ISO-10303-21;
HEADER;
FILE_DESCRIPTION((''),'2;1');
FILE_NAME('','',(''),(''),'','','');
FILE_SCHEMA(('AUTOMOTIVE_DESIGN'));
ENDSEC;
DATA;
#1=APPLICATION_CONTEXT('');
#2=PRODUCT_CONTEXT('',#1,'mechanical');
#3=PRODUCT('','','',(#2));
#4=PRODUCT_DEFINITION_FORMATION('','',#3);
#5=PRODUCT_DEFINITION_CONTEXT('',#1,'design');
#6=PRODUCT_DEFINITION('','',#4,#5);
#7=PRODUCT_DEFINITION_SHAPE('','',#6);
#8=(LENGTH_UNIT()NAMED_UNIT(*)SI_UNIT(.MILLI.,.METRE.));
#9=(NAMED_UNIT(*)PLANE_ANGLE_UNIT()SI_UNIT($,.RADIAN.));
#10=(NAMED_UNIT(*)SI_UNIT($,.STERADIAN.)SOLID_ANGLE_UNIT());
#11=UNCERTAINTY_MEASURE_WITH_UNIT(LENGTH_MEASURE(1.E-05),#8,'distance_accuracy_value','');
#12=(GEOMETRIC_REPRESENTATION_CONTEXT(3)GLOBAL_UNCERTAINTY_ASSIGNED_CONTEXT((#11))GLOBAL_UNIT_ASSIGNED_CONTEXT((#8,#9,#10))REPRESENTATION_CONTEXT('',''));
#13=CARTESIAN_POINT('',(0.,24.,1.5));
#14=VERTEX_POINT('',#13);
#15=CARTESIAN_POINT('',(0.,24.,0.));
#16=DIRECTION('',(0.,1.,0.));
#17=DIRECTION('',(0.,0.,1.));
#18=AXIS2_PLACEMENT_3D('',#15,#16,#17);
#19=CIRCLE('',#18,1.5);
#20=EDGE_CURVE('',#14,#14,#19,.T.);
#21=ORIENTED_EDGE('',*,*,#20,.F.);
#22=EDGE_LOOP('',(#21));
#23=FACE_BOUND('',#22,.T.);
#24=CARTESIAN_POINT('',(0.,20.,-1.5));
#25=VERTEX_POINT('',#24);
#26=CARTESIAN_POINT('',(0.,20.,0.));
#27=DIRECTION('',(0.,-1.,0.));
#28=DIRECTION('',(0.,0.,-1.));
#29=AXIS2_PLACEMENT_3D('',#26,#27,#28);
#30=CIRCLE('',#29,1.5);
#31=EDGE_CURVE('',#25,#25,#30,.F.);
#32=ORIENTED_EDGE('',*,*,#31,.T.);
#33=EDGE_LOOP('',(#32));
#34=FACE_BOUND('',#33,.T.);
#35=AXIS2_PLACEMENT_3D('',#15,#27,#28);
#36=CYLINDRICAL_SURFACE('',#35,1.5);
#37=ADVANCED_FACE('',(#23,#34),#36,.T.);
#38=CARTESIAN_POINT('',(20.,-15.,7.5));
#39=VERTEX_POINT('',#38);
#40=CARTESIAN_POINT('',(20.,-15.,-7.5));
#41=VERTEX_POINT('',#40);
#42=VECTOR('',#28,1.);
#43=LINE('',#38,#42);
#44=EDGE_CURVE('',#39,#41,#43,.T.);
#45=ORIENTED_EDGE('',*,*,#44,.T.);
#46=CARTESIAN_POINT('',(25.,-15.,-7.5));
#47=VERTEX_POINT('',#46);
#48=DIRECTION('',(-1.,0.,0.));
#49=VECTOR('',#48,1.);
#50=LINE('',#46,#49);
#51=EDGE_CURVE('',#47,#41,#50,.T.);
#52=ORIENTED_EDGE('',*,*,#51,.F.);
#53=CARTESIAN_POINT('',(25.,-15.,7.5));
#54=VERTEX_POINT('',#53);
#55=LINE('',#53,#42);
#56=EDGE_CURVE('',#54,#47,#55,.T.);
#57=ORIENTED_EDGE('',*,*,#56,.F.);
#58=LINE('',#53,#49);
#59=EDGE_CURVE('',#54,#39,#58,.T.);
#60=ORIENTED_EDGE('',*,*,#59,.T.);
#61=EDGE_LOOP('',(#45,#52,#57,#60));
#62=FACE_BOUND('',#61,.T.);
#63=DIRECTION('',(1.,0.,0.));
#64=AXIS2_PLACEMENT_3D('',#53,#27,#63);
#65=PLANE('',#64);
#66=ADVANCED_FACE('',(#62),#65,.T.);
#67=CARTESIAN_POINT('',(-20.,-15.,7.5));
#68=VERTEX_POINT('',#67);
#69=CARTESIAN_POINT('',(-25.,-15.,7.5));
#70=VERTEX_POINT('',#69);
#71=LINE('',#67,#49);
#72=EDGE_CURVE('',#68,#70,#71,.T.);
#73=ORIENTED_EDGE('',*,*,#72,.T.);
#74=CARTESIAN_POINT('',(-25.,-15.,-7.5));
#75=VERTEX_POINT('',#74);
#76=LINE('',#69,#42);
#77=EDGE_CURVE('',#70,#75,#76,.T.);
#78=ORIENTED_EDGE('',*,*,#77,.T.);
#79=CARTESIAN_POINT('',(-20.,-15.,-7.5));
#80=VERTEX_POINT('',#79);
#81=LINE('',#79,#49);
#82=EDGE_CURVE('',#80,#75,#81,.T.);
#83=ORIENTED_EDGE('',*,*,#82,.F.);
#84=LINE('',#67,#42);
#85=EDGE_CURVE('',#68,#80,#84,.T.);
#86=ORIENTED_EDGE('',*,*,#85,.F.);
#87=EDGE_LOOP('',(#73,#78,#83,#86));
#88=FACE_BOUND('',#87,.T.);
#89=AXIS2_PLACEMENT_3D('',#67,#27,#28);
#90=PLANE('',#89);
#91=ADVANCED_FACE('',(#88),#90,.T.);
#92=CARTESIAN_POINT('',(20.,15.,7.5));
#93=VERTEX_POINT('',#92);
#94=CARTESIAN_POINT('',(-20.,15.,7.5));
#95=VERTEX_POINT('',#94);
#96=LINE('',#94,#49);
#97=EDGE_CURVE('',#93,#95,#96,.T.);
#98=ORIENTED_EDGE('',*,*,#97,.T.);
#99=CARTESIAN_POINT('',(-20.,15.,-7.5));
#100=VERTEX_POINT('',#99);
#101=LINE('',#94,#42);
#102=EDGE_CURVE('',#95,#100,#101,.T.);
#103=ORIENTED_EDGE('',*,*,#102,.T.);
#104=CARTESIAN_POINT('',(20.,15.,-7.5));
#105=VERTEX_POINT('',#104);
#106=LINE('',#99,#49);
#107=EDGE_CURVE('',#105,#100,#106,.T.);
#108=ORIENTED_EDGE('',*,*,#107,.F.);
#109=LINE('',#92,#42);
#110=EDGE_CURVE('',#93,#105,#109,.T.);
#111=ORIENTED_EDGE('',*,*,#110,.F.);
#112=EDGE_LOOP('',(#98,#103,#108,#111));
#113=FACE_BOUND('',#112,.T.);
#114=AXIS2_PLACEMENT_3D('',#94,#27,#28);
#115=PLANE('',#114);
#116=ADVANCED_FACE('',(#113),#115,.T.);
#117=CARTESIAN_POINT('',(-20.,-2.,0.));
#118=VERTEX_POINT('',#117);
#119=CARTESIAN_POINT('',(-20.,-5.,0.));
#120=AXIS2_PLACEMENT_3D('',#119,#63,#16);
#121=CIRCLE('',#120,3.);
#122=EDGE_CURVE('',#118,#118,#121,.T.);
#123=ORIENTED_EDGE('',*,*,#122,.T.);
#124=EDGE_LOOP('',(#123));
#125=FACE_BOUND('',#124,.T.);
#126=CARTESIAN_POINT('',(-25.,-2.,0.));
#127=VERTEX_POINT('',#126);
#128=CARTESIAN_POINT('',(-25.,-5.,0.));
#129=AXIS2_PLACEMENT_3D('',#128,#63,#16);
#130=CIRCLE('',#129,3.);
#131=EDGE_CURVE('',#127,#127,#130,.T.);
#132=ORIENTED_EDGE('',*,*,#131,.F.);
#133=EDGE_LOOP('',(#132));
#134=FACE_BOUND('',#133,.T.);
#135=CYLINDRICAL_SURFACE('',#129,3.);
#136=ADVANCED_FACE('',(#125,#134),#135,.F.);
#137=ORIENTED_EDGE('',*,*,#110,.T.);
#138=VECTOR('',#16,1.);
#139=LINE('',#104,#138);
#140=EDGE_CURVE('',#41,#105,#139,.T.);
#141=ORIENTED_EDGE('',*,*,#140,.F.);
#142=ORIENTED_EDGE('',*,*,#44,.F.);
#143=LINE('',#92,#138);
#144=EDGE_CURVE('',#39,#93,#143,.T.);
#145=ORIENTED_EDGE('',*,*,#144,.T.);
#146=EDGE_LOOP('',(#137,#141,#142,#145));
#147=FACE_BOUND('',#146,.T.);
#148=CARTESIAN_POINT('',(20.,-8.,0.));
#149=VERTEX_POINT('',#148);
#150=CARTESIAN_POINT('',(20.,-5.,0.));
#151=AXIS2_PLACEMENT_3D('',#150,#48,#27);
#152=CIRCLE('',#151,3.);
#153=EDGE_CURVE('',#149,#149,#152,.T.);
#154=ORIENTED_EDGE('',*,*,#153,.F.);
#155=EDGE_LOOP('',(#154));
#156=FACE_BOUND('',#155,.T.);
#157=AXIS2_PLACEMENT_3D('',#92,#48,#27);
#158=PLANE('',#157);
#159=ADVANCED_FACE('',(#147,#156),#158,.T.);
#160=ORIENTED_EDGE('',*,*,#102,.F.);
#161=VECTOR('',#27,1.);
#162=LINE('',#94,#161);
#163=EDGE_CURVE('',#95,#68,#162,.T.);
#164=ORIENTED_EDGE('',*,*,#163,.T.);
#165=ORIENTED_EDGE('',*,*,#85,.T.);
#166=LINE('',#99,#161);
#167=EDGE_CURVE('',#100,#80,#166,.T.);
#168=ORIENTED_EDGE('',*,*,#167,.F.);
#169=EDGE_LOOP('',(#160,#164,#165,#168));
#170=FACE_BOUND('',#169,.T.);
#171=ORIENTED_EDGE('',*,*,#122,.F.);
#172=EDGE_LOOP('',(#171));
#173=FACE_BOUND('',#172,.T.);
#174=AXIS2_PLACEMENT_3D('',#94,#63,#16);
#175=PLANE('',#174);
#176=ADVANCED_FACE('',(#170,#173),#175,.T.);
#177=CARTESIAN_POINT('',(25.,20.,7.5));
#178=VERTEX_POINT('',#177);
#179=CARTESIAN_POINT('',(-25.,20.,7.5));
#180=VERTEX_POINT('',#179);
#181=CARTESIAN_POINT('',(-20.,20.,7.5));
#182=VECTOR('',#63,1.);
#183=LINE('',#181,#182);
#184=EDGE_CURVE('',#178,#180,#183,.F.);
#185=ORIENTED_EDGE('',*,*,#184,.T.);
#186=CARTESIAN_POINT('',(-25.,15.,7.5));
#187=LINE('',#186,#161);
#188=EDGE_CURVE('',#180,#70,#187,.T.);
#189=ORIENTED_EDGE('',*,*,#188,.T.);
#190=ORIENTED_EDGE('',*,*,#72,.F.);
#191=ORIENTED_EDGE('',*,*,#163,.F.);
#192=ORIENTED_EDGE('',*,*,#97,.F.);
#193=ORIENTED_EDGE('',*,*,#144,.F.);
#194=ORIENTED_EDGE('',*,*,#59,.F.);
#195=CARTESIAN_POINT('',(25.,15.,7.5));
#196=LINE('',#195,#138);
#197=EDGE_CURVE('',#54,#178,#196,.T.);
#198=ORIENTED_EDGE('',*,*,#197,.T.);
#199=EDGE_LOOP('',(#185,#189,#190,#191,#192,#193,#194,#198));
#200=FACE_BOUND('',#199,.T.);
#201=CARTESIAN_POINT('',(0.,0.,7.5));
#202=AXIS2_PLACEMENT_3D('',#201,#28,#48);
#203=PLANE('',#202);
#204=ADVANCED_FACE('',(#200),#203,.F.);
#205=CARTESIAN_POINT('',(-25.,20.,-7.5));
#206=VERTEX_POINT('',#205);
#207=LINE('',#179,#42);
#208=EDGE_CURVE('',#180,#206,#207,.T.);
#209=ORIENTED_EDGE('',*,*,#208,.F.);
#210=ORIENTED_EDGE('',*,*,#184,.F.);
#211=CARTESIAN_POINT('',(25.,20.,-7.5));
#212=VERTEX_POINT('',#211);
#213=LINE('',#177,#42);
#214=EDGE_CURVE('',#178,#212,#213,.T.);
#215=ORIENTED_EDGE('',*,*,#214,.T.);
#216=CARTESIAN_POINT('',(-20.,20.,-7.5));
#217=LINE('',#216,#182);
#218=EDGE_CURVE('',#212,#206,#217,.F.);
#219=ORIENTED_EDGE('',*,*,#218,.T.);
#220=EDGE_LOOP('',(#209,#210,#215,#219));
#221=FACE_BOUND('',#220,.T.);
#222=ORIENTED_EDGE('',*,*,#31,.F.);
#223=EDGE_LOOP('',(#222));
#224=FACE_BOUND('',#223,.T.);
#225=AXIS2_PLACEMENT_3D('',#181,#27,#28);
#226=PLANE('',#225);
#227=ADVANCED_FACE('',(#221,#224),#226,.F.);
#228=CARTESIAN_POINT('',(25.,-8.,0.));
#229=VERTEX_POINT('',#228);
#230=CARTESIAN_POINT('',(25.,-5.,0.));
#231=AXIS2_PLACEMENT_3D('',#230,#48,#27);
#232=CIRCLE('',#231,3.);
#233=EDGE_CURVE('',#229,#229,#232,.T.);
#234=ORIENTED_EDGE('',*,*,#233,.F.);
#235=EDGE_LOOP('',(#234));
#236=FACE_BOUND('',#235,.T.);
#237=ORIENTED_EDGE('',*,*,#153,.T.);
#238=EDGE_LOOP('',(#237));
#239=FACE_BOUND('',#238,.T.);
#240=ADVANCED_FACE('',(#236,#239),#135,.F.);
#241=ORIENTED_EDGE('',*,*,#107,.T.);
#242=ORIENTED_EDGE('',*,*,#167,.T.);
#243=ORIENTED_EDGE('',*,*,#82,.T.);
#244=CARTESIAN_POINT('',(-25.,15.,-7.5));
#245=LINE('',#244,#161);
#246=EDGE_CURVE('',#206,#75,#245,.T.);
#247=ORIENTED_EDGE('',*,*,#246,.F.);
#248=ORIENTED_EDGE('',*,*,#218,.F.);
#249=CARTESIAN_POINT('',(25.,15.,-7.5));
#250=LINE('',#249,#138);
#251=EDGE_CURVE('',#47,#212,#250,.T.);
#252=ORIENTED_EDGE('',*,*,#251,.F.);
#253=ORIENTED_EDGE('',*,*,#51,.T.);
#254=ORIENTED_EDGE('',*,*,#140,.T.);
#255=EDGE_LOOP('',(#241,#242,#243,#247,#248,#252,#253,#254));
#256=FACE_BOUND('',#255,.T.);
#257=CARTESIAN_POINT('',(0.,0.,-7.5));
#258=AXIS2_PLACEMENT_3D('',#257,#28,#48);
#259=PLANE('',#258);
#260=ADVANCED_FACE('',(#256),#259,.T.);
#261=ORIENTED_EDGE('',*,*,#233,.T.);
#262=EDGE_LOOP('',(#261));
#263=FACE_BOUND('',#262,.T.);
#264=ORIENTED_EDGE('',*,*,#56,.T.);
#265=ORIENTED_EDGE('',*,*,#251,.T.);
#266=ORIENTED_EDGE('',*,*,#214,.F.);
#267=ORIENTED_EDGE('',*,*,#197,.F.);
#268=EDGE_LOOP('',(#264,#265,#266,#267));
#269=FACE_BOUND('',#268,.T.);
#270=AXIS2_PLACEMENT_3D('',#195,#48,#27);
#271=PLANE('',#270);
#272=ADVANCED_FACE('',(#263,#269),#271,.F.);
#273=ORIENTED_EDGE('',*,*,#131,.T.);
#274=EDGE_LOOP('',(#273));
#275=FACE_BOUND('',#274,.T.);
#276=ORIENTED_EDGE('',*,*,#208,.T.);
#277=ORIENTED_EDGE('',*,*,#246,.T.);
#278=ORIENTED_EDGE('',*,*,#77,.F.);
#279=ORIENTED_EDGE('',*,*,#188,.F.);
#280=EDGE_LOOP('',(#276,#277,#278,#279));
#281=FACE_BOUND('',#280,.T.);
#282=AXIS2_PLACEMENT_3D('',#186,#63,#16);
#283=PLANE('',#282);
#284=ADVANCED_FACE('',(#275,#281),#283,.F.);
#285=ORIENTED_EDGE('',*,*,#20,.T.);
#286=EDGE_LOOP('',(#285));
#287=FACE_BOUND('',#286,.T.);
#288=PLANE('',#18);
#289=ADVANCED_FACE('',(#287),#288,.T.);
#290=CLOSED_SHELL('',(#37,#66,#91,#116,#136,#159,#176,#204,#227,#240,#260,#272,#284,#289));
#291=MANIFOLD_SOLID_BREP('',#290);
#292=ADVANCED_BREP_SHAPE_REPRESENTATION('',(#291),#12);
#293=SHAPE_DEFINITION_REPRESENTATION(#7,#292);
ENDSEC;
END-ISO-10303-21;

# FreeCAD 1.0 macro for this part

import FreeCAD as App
import Part
import Sketcher

V = App.Vector

doc = App.newDocument("Part")
body = doc.addObject("PartDesign::Body", "Body")

sketch1 = doc.addObject("Sketcher::SketchObject", "Sketch")
body.addObject(sketch1)
sketch1.AttachmentSupport = (doc.XY_Plane, [""])
sketch1.MapMode = "FlatFace"
sketch1.addGeometry([
    Part.LineSegment(V(-20, -15, 0), V(-20, 15, 0)),
    Part.LineSegment(V(-20, 15, 0), V(20, 15, 0)),
    Part.LineSegment(V(20, 15, 0), V(20, -15, 0)),
    Part.LineSegment(V(20, -15, 0), V(25, -15, 0)),
    Part.LineSegment(V(25, -15, 0), V(25, 20, 0)),
    Part.LineSegment(V(25, 20, 0), V(-25, 20, 0)),
    Part.LineSegment(V(-25, 20, 0), V(-25, -15, 0)),
    Part.LineSegment(V(-25, -15, 0), V(-20, -15, 0)),
], False)
sketch1.addConstraint([
    Sketcher.Constraint("Coincident", 0, 2, 1, 1),
    Sketcher.Constraint("Coincident", 1, 2, 2, 1),
    Sketcher.Constraint("Coincident", 2, 2, 3, 1),
    Sketcher.Constraint("Coincident", 3, 2, 4, 1),
    Sketcher.Constraint("Coincident", 4, 2, 5, 1),
    Sketcher.Constraint("Coincident", 5, 2, 6, 1),
    Sketcher.Constraint("Coincident", 6, 2, 7, 1),
    Sketcher.Constraint("Coincident", 7, 2, 0, 1),
    Sketcher.Constraint("Vertical", 0),
    Sketcher.Constraint("Horizontal", 1),
    Sketcher.Constraint("Vertical", 2),
    Sketcher.Constraint("Horizontal", 3),
    Sketcher.Constraint("Vertical", 4),
    Sketcher.Constraint("Horizontal", 5),
    Sketcher.Constraint("Vertical", 6),
    Sketcher.Constraint("Horizontal", 7),
    Sketcher.Constraint("Symmetric", 0, 2, 2, 2, -1, 1),
    Sketcher.Constraint("Symmetric", 3, 2, 6, 2, -2),
    Sketcher.Constraint("DistanceX", 1, 1, 1, 2, 40.0),
    Sketcher.Constraint("DistanceX", 3, 1, 3, 2, 5.0),
    Sketcher.Constraint("DistanceY", 0, 1, 0, 2, 30.0),
    Sketcher.Constraint("DistanceY", 4, 1, 4, 2, 35.0),
])
pad1 = doc.addObject("PartDesign::Pad", "Pad")
body.addObject(pad1)
pad1.Profile = sketch1
pad1.Length = 15
pad1.Midplane = True

sketch2 = doc.addObject("Sketcher::SketchObject", "Sketch001")
body.addObject(sketch2)
sketch2.AttachmentSupport = (doc.XZ_Plane, [""])
sketch2.MapMode = "FlatFace"
sketch2.AttachmentOffset = App.Placement(V(0, 0, -20), App.Rotation())
sketch2.addGeometry(Part.Circle(V(0, 0, 0), V(0, 0, 1), 1.5), False)
sketch2.addConstraint([
    Sketcher.Constraint("Coincident", 0, 3, -1, 1),
    Sketcher.Constraint("Diameter", 0, 3.0),
])
pad2 = doc.addObject("PartDesign::Pad", "Pad001")
body.addObject(pad2)
pad2.Profile = sketch2
pad2.Length = 4
pad2.Reversed = True

sketch3 = doc.addObject("Sketcher::SketchObject", "Sketch002")
body.addObject(sketch3)
sketch3.AttachmentSupport = (doc.YZ_Plane, [""])
sketch3.MapMode = "FlatFace"
sketch3.AttachmentOffset = App.Placement(V(0, 0, 25), App.Rotation())
sketch3.addGeometry(Part.Circle(V(-5, 0, 0), V(0, 0, 1), 3), False)
sketch3.addConstraint([
    Sketcher.Constraint("PointOnObject", 0, 3, -1),
    Sketcher.Constraint("Diameter", 0, 6.0),
    Sketcher.Constraint("DistanceX", 0, 3, -1, 1, 5.0),
])
pocket1 = doc.addObject("PartDesign::Pocket", "Pocket")
body.addObject(pocket1)
pocket1.Profile = sketch3
pocket1.Type = "ThroughAll"
pocket1.Midplane = True

doc.recompute()
